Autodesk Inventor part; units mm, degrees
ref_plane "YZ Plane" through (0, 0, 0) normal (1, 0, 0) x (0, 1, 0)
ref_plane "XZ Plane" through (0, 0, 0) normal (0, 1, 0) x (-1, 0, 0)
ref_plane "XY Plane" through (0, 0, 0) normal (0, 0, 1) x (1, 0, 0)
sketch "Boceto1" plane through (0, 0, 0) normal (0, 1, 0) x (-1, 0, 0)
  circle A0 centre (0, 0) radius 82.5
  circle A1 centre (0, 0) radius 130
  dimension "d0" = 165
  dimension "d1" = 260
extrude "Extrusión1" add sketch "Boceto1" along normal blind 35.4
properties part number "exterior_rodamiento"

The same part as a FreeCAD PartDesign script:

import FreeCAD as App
import Part
import Sketcher
Q = App.Units.Quantity

doc = App.newDocument("Part")
body = doc.addObject("PartDesign::Body", "Body")

sketch1 = body.newObject("Sketcher::SketchObject", "Sketch")
sketch1.AttachmentSupport = (doc.getObject("XZ_Plane"), [""])
sketch1.MapMode = "FlatFace"
sketch1.addGeometry([
    Part.Circle(App.Vector(0, 0, 0), App.Vector(0, 0, 1), 130),
    Part.Circle(App.Vector(0, 0, 0), App.Vector(0, 0, 1), 82.5),
], False)
sketch1.addConstraint([
    Sketcher.Constraint("Coincident", 0, 3, -1, 1),
    Sketcher.Constraint("Coincident", 1, 3, -1, 1),
    Sketcher.Constraint("Diameter", 0, Q("260 mm")),
    Sketcher.Constraint("Diameter", 1, Q("165 mm")),
])
pad1 = body.newObject("PartDesign::Pad", "Pad")
pad1.Profile = sketch1
pad1.Length = 35.4
pad1.Reversed = True

doc.recompute()
